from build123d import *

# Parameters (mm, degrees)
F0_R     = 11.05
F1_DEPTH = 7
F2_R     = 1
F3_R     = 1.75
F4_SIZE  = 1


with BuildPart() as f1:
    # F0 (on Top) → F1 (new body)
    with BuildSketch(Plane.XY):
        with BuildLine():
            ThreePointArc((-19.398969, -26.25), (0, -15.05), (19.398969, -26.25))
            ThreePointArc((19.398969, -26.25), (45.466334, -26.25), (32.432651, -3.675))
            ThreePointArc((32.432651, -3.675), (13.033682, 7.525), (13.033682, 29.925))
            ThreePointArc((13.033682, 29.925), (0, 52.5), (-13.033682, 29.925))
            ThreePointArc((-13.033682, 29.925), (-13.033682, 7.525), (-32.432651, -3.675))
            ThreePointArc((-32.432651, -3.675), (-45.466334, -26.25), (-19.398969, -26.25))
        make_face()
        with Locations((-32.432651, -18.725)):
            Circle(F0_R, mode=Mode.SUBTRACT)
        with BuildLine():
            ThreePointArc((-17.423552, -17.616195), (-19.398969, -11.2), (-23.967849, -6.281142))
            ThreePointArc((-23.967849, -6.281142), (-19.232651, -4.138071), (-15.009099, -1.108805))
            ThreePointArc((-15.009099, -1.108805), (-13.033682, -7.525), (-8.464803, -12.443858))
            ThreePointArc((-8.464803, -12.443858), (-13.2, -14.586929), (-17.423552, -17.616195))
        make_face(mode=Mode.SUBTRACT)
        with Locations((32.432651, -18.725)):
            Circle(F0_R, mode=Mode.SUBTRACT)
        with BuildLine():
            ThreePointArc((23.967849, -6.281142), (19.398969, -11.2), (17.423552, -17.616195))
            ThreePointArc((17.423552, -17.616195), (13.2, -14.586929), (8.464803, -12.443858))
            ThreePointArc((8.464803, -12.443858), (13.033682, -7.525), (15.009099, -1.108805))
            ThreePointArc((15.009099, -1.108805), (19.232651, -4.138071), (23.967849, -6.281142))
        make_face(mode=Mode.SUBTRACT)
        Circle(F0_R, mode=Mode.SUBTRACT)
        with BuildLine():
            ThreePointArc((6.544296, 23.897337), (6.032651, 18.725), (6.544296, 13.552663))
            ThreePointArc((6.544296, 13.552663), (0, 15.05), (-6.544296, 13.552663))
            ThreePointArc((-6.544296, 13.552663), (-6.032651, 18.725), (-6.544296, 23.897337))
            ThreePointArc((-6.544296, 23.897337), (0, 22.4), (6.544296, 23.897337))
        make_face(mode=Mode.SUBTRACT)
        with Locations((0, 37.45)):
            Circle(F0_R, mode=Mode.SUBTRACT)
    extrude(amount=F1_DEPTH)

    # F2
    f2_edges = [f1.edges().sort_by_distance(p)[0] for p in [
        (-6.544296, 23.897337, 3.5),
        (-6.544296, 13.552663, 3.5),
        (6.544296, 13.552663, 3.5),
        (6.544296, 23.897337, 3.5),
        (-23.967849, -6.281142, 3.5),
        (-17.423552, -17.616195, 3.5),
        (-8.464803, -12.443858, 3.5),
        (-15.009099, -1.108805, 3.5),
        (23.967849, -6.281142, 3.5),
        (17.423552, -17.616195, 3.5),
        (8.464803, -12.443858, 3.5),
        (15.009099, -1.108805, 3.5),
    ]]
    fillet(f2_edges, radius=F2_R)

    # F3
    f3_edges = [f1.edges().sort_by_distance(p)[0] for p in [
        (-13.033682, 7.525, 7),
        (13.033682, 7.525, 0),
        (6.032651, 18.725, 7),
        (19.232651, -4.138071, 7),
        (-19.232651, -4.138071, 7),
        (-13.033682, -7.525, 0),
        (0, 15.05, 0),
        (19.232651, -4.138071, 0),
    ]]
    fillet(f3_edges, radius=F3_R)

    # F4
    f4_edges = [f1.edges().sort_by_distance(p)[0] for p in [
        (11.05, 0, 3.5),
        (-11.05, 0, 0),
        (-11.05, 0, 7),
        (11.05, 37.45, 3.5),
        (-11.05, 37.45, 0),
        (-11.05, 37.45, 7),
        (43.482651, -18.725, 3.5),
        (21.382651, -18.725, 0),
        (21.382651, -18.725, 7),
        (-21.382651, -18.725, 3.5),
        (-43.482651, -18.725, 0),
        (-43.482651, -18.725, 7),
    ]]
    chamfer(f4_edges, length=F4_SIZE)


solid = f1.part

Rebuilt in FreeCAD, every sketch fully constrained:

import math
import FreeCAD as App
import Part
import Sketcher
Q = App.Units.Quantity


def edges_at(feature, points):
    """Names of the edges that pass closest to the given points."""
    edges = feature.Shape.Edges
    near = lambda p: min(range(len(edges)), key=lambda i: edges[i].distToShape(Part.Vertex(*p))[0])
    return sorted({f"Edge{near(p) + 1}" for p in points})

doc = App.newDocument("Part")
body = doc.addObject("PartDesign::Body", "Body")

# Sketch on XY plane
sketch1 = body.newObject("Sketcher::SketchObject", "Sketch")
sketch1.AttachmentSupport = (doc.getObject("XY_Plane"), [""])
sketch1.MapMode = "FlatFace"
sketch1.addGeometry([
    Part.ArcOfCircle(Part.Circle(App.Vector(0, -37, 0), App.Vector(0, 0, 1), 22), math.radians(30), math.radians(150)),  # 0
    Part.ArcOfCircle(Part.Circle(App.Vector(32, -19, 0), App.Vector(0, 0, 1), 15), math.radians(-150), math.radians(90)),  # 1
    Part.ArcOfCircle(Part.Circle(App.Vector(32, 19, 0), App.Vector(0, 0, 1), 22), math.radians(150), math.radians(270)),  # 2
    Part.ArcOfCircle(Part.Circle(App.Vector(0, 37, 0), App.Vector(0, 0, 1), 15), math.radians(-30), math.radians(210)),  # 3
    Part.ArcOfCircle(Part.Circle(App.Vector(-32, 19, 0), App.Vector(0, 0, 1), 22), math.radians(-90), math.radians(30)),  # 4
    Part.ArcOfCircle(Part.Circle(App.Vector(-32, -19, 0), App.Vector(0, 0, 1), 15), math.radians(90), math.radians(330)),  # 5
    Part.Circle(App.Vector(-32, -19, 0), App.Vector(0, 0, 1), 11),  # 6
    Part.ArcOfCircle(Part.Circle(App.Vector(0, -37, 0), App.Vector(0, 0, 1), 26), math.radians(109), math.radians(131)),  # 7
    Part.ArcOfCircle(Part.Circle(App.Vector(-32, -19, 0), App.Vector(0, 0, 1), 15), math.radians(4), math.radians(56)),  # 8
    Part.ArcOfCircle(Part.Circle(App.Vector(-32, 19, 0), App.Vector(0, 0, 1), 26), math.radians(-71), math.radians(-49)),  # 9
    Part.ArcOfCircle(Part.Circle(App.Vector(0, 0, 0), App.Vector(0, 0, 1), 15), math.radians(-176), math.radians(-124)),  # 10
    Part.Circle(App.Vector(32, -19, 0), App.Vector(0, 0, 1), 11),  # 11
    Part.ArcOfCircle(Part.Circle(App.Vector(32, 19, 0), App.Vector(0, 0, 1), 26), math.radians(-131), math.radians(-109)),  # 12
    Part.ArcOfCircle(Part.Circle(App.Vector(32, -19, 0), App.Vector(0, 0, 1), 15), math.radians(124), math.radians(176)),  # 13
    Part.ArcOfCircle(Part.Circle(App.Vector(0, -37, 0), App.Vector(0, 0, 1), 26), math.radians(49), math.radians(71)),  # 14
    Part.ArcOfCircle(Part.Circle(App.Vector(0, 0, 0), App.Vector(0, 0, 1), 15), math.radians(-56), math.radians(-4)),  # 15
    Part.Circle(App.Vector(0, 0, 0), App.Vector(0, 0, 1), 11),  # 16
    Part.ArcOfCircle(Part.Circle(App.Vector(0, 37, 0), App.Vector(0, 0, 1), 15), math.radians(-116), math.radians(-64)),  # 17
    Part.ArcOfCircle(Part.Circle(App.Vector(32, 19, 0), App.Vector(0, 0, 1), 26), math.radians(169), math.radians(191)),  # 18
    Part.ArcOfCircle(Part.Circle(App.Vector(0, 0, 0), App.Vector(0, 0, 1), 15), math.radians(64), math.radians(116)),  # 19
    Part.ArcOfCircle(Part.Circle(App.Vector(-32, 19, 0), App.Vector(0, 0, 1), 26), math.radians(-11), math.radians(11)),  # 20
    Part.Circle(App.Vector(0, 37, 0), App.Vector(0, 0, 1), 11),  # 21
], False)
sketch1.addConstraint([
    Sketcher.Constraint("Tangent", 0, 1, 1, 1),
    Sketcher.Constraint("Tangent", 1, 2, 2, 2),
    Sketcher.Constraint("Tangent", 2, 1, 3, 1),
    Sketcher.Constraint("Tangent", 3, 2, 4, 2),
    Sketcher.Constraint("Tangent", 4, 1, 5, 1),
    Sketcher.Constraint("Tangent", 5, 2, 0, 2),
    Sketcher.Constraint("Coincident", 7, 2, 8, 1),
    Sketcher.Constraint("Coincident", 8, 2, 9, 1),
    Sketcher.Constraint("Coincident", 9, 2, 10, 1),
    Sketcher.Constraint("Coincident", 10, 2, 7, 1),
    Sketcher.Constraint("Coincident", 12, 2, 13, 1),
    Sketcher.Constraint("Coincident", 13, 2, 14, 1),
    Sketcher.Constraint("Coincident", 14, 2, 15, 1),
    Sketcher.Constraint("Coincident", 15, 2, 12, 1),
    Sketcher.Constraint("Coincident", 17, 2, 18, 1),
    Sketcher.Constraint("Coincident", 18, 2, 19, 1),
    Sketcher.Constraint("Coincident", 19, 2, 20, 1),
    Sketcher.Constraint("Coincident", 20, 2, 17, 1),
    Sketcher.Constraint("Coincident", 10, 3, -1, 1),
    Sketcher.Constraint("Coincident", 15, 3, -1, 1),
    Sketcher.Constraint("Coincident", 16, 3, -1, 1),
    Sketcher.Constraint("Coincident", 19, 3, -1, 1),
    Sketcher.Constraint("Coincident", 6, 3, 5, 3),
    Sketcher.Constraint("Coincident", 7, 3, 0, 3),
    Sketcher.Constraint("Coincident", 8, 3, 5, 3),
    Sketcher.Constraint("Coincident", 11, 3, 1, 3),
    Sketcher.Constraint("Coincident", 13, 3, 1, 3),
    Sketcher.Constraint("Coincident", 14, 3, 0, 3),
    Sketcher.Constraint("Coincident", 17, 3, 3, 3),
    Sketcher.Constraint("Coincident", 18, 3, 2, 3),
    Sketcher.Constraint("Coincident", 20, 3, 4, 3),
    Sketcher.Constraint("Coincident", 21, 3, 3, 3),
    Sketcher.Constraint("Equal", 0, 2),
    Sketcher.Constraint("Equal", 1, 3),
    Sketcher.Constraint("Equal", 2, 4),
    Sketcher.Constraint("Equal", 3, 5),
    Sketcher.Constraint("Equal", 5, 8),
    Sketcher.Constraint("Equal", 5, 10),
    Sketcher.Constraint("Equal", 6, 11),
    Sketcher.Constraint("Equal", 9, 12),
    Sketcher.Constraint("Equal", 8, 13),
    Sketcher.Constraint("Equal", 7, 14),
    Sketcher.Constraint("Equal", 10, 15),
    Sketcher.Constraint("Equal", 11, 16),
    Sketcher.Constraint("Equal", 17, 19),
    Sketcher.Constraint("Equal", 18, 20),
    Sketcher.Constraint("Equal", 16, 21),
    Sketcher.Constraint("Symmetric", 0, 3, 3, 3, -1, 1),
    Sketcher.Constraint("Symmetric", 2, 3, 4, 3, -2),
    Sketcher.Constraint("Symmetric", 9, 3, 12, 3, -2),
    Sketcher.Constraint("Vertical", 1, 3, 2, 3),
    Sketcher.Constraint("Vertical", 17, 2, 18, 2),
    Sketcher.Constraint("Diameter", 6, Q("22.1 mm")),
    Sketcher.Constraint("Radius", 0, Q("22.4 mm")),
    Sketcher.Constraint("Radius", 1, Q("15.05 mm")),
    Sketcher.Constraint("Radius", 7, Q("26.399991 mm")),
    Sketcher.Constraint("Radius", 9, Q("26.399983 mm")),
    Sketcher.Constraint("Radius", 17, Q("15.049995 mm")),
    Sketcher.Constraint("Radius", 18, Q("26.399995 mm")),
    Sketcher.Constraint("DistanceX", 9, 2, -1, 1, Q("15.009099 mm")),
    Sketcher.Constraint("DistanceX", 8, 3, 8, 2, Q("8.464801 mm")),
])
pad1 = body.newObject("PartDesign::Pad", "Pad")
pad1.Profile = sketch1
pad1.Length = 7
doc.recompute()

fillet = body.newObject("PartDesign::Fillet", "Fillet")
fillet.Base = (pad1, edges_at(pad1, [
    (-6.544, 23.897, 3.5),
    (-6.544, 13.553, 3.5),
    (6.544, 13.553, 3.5),
    (6.544, 23.897, 3.5),
    (-23.968, -6.281, 3.5),
    (-17.424, -17.616, 3.5),
    (-8.465, -12.444, 3.5),
    (-15.009, -1.109, 3.5),
    (23.968, -6.281, 3.5),
    (17.424, -17.616, 3.5),
    (8.465, -12.444, 3.5),
    (15.009, -1.109, 3.5),
]))
fillet.Radius = 1
doc.recompute()

fillet2 = body.newObject("PartDesign::Fillet", "Fillet001")
fillet2.Base = (fillet, edges_at(fillet, [
    (-13.034, 7.525, 7),
    (13.034, 7.525, 0),
    (6.033, 18.725, 7),
    (19.233, -4.138, 7),
    (-19.233, -4.138, 7),
    (-13.034, -7.525, 0),
    (0, 15.05, 0),
    (19.233, -4.138, 0),
]))
fillet2.Radius = 1.75
doc.recompute()

chamfer = body.newObject("PartDesign::Chamfer", "Chamfer")
chamfer.Base = (fillet2, edges_at(fillet2, [
    (11.05, 0, 3.5),
    (-11.05, 0, 0),
    (-11.05, 0, 7),
    (11.05, 37.45, 3.5),
    (-11.05, 37.45, 0),
    (-11.05, 37.45, 7),
    (43.483, -18.725, 3.5),
    (21.383, -18.725, 0),
    (21.383, -18.725, 7),
    (-21.383, -18.725, 3.5),
    (-43.483, -18.725, 0),
    (-43.483, -18.725, 7),
]))
chamfer.Size = 1

doc.recompute()
